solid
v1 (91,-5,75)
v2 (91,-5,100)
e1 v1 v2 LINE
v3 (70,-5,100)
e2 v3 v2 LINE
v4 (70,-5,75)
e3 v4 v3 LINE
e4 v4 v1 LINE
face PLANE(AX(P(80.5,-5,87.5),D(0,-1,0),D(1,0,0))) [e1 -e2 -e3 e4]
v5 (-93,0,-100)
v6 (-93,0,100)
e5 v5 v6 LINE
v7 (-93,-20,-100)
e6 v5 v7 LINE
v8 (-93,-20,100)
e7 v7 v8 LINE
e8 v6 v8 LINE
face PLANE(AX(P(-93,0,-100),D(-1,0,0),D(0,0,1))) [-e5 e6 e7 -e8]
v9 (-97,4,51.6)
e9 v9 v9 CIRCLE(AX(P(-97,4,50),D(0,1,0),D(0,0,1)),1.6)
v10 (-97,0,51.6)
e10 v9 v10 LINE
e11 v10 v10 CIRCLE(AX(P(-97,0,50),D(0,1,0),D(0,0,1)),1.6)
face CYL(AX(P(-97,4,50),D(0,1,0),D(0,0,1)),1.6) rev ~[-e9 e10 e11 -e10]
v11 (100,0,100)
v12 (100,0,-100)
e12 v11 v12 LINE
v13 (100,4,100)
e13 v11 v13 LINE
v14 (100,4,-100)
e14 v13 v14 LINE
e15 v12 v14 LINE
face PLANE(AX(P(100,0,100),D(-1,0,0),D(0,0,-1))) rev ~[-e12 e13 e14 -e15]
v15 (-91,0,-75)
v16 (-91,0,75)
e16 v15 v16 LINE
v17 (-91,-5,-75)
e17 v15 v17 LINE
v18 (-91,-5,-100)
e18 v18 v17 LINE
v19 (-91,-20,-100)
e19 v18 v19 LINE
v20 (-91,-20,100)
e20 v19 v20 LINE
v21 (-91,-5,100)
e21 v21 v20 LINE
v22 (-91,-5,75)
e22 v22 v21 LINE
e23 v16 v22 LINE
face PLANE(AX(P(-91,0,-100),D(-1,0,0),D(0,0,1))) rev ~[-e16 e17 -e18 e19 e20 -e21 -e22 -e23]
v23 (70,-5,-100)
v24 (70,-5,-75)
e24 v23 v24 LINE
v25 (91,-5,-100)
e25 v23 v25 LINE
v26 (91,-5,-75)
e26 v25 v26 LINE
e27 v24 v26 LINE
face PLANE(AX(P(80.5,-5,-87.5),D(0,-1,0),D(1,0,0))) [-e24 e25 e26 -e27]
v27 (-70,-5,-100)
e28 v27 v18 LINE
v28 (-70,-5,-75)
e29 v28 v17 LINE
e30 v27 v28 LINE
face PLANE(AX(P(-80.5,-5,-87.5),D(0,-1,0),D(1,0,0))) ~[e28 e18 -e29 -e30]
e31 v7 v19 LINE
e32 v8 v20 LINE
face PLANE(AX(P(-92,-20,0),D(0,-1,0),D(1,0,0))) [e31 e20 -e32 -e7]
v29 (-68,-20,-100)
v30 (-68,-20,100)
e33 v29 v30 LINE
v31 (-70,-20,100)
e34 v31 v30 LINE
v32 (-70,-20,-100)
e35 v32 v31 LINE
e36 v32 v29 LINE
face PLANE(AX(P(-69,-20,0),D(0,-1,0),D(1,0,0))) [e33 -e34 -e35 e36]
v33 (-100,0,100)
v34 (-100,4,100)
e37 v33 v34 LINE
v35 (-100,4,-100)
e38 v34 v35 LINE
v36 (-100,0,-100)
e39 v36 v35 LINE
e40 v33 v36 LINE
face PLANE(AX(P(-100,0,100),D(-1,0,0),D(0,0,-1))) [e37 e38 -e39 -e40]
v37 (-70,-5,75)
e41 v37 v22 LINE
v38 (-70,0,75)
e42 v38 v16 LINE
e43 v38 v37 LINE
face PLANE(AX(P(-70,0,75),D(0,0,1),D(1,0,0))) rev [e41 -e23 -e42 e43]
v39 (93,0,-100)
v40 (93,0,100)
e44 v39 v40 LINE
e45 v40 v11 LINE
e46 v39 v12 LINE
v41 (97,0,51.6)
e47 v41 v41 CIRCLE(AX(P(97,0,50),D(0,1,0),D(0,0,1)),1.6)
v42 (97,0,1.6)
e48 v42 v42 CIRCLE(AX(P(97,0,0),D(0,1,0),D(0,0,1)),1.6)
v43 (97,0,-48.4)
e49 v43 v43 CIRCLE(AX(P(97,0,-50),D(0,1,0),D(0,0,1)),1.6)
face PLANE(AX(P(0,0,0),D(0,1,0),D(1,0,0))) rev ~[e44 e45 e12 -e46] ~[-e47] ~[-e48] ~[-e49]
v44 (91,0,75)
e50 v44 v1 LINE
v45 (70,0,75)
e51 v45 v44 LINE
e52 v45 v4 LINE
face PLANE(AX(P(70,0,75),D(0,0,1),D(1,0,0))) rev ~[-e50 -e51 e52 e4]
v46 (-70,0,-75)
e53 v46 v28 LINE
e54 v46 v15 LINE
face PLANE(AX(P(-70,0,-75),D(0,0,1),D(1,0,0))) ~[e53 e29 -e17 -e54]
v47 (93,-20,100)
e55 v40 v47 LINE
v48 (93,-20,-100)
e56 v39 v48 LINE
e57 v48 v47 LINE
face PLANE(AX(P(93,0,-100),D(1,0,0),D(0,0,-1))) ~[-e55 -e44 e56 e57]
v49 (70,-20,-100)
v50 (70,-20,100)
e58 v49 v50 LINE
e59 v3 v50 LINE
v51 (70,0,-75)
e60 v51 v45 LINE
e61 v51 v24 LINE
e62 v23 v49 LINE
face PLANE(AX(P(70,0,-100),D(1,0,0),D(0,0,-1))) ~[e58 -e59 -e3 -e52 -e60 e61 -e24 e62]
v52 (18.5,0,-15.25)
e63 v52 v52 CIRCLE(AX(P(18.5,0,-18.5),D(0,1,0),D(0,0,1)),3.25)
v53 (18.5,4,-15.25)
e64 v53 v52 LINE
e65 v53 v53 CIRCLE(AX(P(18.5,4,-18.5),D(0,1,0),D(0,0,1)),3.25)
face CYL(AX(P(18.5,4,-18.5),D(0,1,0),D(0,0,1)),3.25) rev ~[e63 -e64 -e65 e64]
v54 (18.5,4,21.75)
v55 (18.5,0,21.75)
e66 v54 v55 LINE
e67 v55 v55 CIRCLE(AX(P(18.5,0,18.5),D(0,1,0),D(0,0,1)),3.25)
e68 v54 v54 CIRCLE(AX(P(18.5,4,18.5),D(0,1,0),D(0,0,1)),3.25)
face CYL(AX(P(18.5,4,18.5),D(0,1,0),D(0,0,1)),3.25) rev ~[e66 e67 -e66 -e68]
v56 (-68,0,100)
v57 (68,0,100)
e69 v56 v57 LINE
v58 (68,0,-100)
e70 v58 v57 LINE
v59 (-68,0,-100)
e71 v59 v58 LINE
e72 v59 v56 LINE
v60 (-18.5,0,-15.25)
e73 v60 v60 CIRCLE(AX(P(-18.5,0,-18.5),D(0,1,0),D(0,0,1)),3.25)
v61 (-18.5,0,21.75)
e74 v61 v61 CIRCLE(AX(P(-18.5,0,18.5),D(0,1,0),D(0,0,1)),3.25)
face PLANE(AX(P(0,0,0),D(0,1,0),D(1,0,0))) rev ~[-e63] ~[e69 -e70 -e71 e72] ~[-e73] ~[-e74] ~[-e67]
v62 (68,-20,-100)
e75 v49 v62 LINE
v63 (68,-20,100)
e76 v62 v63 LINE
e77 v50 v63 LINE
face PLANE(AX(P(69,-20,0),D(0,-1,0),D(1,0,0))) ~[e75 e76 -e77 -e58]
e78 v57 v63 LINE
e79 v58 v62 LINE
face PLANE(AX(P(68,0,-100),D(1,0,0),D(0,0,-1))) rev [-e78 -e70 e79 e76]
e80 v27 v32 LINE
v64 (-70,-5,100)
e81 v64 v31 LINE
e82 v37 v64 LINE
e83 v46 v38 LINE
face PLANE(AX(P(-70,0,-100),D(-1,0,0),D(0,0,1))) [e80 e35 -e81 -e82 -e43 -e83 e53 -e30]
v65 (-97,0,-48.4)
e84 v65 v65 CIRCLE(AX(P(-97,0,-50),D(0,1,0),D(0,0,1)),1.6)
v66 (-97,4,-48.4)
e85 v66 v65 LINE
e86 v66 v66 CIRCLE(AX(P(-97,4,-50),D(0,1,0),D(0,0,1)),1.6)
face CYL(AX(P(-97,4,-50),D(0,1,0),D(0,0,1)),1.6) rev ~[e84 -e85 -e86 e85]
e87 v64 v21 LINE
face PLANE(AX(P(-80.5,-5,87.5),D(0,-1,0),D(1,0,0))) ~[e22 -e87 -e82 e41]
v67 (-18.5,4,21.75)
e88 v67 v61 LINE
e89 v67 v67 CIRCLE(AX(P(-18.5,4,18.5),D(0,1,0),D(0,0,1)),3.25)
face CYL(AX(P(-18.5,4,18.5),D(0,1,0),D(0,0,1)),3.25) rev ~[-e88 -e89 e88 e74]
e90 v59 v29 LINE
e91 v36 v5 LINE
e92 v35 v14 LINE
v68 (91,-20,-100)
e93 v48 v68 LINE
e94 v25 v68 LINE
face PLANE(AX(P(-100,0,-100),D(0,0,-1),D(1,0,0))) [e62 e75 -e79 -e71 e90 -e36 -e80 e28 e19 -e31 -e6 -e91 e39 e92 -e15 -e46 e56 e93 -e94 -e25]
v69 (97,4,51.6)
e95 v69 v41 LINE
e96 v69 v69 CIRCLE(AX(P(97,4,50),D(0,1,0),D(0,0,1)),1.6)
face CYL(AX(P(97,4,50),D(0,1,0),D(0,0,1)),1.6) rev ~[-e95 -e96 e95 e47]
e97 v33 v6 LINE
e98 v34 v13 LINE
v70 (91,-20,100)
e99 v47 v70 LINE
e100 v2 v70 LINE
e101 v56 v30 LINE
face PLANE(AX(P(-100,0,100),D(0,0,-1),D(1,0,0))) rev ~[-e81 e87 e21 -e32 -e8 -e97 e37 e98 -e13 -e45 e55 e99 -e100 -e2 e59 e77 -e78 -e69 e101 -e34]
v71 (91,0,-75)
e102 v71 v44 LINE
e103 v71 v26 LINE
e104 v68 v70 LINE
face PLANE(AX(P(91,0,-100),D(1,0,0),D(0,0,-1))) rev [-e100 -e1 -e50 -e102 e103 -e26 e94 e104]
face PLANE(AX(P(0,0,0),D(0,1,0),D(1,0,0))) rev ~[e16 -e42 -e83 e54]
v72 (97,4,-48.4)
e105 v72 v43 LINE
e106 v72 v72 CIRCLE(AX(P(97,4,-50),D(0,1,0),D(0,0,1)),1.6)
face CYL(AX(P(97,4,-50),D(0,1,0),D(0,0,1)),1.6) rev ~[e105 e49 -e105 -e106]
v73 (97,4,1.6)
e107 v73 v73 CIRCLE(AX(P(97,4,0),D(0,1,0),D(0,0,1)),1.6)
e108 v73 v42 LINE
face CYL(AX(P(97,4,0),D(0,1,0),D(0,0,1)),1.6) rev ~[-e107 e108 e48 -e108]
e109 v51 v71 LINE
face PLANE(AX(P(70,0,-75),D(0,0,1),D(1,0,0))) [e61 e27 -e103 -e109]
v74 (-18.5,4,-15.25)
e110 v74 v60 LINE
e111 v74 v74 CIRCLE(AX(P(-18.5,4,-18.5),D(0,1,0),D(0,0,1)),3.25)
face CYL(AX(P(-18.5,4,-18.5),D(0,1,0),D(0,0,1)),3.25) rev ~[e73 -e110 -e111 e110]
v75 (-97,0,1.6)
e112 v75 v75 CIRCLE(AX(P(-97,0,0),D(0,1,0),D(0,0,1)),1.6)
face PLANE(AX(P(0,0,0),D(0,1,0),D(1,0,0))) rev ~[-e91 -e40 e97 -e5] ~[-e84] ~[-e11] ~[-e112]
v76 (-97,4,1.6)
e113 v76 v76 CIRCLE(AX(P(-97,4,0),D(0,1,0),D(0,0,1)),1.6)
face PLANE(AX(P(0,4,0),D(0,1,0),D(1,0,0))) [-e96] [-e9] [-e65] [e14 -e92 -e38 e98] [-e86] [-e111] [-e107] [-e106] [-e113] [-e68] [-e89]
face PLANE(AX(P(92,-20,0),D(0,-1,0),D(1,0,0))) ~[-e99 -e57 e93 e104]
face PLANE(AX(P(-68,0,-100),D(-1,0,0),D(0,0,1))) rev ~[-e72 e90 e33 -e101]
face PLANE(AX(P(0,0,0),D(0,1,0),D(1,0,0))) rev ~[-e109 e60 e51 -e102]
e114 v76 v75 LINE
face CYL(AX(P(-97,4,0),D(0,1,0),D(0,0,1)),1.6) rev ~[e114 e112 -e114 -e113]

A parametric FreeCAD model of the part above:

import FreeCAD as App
import Part
import Sketcher

doc = App.newDocument("Part")
body = doc.addObject("PartDesign::Body", "Body")

sketch1 = body.newObject("Sketcher::SketchObject", "Sketch")
sketch1.AttachmentSupport = (doc.getObject("XZ_Plane"), [""])
sketch1.MapMode = "FlatFace"
sketch1.addGeometry([
    Part.LineSegment(App.Vector(-100, -100, 0), App.Vector(-100, 100, 0)),
    Part.LineSegment(App.Vector(-100, 100, 0), App.Vector(100, 100, 0)),
    Part.LineSegment(App.Vector(100, 100, 0), App.Vector(100, -100, 0)),
    Part.LineSegment(App.Vector(100, -100, 0), App.Vector(-100, -100, 0)),
], False)
sketch1.addConstraint([
    Sketcher.Constraint("Coincident", 0, 2, 1, 1),
    Sketcher.Constraint("Coincident", 1, 2, 2, 1),
    Sketcher.Constraint("Coincident", 2, 2, 3, 1),
    Sketcher.Constraint("Coincident", 3, 2, 0, 1),
    Sketcher.Constraint("Vertical", 0),
    Sketcher.Constraint("Horizontal", 1),
    Sketcher.Constraint("Vertical", 2),
    Sketcher.Constraint("Horizontal", 3),
    Sketcher.Constraint("Symmetric", 0, 2, 2, 2, -1, 1),
    Sketcher.Constraint("Equal", 3, 0),
    Sketcher.Constraint("DistanceX", 1, 1, 1, 2, 200.0),
])
pad1 = body.newObject("PartDesign::Pad", "Pad")
pad1.Profile = sketch1
pad1.Length = 4
pad1.Reversed = True

sketch2 = body.newObject("Sketcher::SketchObject", "Sketch001")
sketch2.AttachmentSupport = (doc.getObject("XZ_Plane"), [""])
sketch2.MapMode = "FlatFace"
sketch2.addGeometry([
    Part.LineSegment(App.Vector(-70, 100, 0), App.Vector(-70, -100, 0)),
    Part.LineSegment(App.Vector(-70, -100, 0), App.Vector(-68, -100, 0)),
    Part.LineSegment(App.Vector(-68, -100, 0), App.Vector(-68, 100, 0)),
    Part.LineSegment(App.Vector(-68, 100, 0), App.Vector(-70, 100, 0)),
    Part.LineSegment(App.Vector(-93, 100, 0), App.Vector(-93, -100, 0)),
    Part.LineSegment(App.Vector(-93, -100, 0), App.Vector(-91, -100, 0)),
    Part.LineSegment(App.Vector(-91, -100, 0), App.Vector(-91, 100, 0)),
    Part.LineSegment(App.Vector(-91, 100, 0), App.Vector(-93, 100, 0)),
], False)
sketch2.addConstraint([
    Sketcher.Constraint("Coincident", 0, 2, 1, 1),
    Sketcher.Constraint("Coincident", 1, 2, 2, 1),
    Sketcher.Constraint("Coincident", 2, 2, 3, 1),
    Sketcher.Constraint("Coincident", 3, 2, 0, 1),
    Sketcher.Constraint("Coincident", 4, 2, 5, 1),
    Sketcher.Constraint("Coincident", 5, 2, 6, 1),
    Sketcher.Constraint("Coincident", 6, 2, 7, 1),
    Sketcher.Constraint("Coincident", 7, 2, 4, 1),
    Sketcher.Constraint("Vertical", 0),
    Sketcher.Constraint("Horizontal", 1),
    Sketcher.Constraint("Vertical", 2),
    Sketcher.Constraint("Horizontal", 3),
    Sketcher.Constraint("Vertical", 4),
    Sketcher.Constraint("Horizontal", 5),
    Sketcher.Constraint("Vertical", 6),
    Sketcher.Constraint("Horizontal", 7),
    Sketcher.Constraint("Horizontal", 1, 2, 4, 2),
    Sketcher.Constraint("Horizontal", 3, 2, 6, 2),
    Sketcher.Constraint("Equal", 3, 5),
    Sketcher.Constraint("DistanceX", 1, 1, 1, 2, 2.0),
    Sketcher.Constraint("DistanceY", 0, 2, 0, 1, 200.0),
    Sketcher.Constraint("DistanceX", 0, 2, -1, 1, 70.0),
    Sketcher.Constraint("DistanceY", 0, 2, -1, 1, 100.0),
    Sketcher.Constraint("DistanceX", 4, 2, -1, 1, 93.0),
])
pad2 = body.newObject("PartDesign::Pad", "Pad001")
pad2.Profile = sketch2
pad2.Length = 20
doc.recompute()

mirrored = body.newObject("PartDesign::Mirrored", "Mirrored")
mirrored.Originals = [pad2]
mirrored.MirrorPlane = (doc.getObject("YZ_Plane"), [""])
body.Tip = mirrored

sketch3 = body.newObject("Sketcher::SketchObject", "Sketch002")
sketch3.AttachmentSupport = (doc.getObject("XZ_Plane"), [""])
sketch3.MapMode = "FlatFace"
sketch3.AttachmentOffset = App.Placement(App.Vector(0, 0, -4), App.Rotation())
sketch3.addGeometry([
    Part.Circle(App.Vector(18.5, -18.5, 0), App.Vector(0, 0, 1), 3.2),
    Part.Circle(App.Vector(18.5, 18.5, 0), App.Vector(0, 0, 1), 3.2),
    Part.Circle(App.Vector(-18.5, 18.5, 0), App.Vector(0, 0, 1), 3.2),
    Part.Circle(App.Vector(-18.5, -18.5, 0), App.Vector(0, 0, 1), 3.2),
    Part.Circle(App.Vector(97, 50, 0), App.Vector(0, 0, 1), 1.6),
    Part.Circle(App.Vector(97, -50, 0), App.Vector(0, 0, 1), 1.6),
    Part.Circle(App.Vector(-97, 50, 0), App.Vector(0, 0, 1), 1.6),
    Part.Circle(App.Vector(-97, -50, 0), App.Vector(0, 0, 1), 1.6),
    Part.Circle(App.Vector(-97, 0, 0), App.Vector(0, 0, 1), 1.6),
    Part.Circle(App.Vector(97, 0, 0), App.Vector(0, 0, 1), 1.6),
], False)
sketch3.addConstraint([
    Sketcher.Constraint("Equal", 0, 1),
    Sketcher.Constraint("Equal", 1, 2),
    Sketcher.Constraint("Equal", 2, 3),
    Sketcher.Constraint("Equal", 4, 5),
    Sketcher.Constraint("Equal", 5, 6),
    Sketcher.Constraint("Equal", 6, 7),
    Sketcher.Constraint("Equal", 7, 8),
    Sketcher.Constraint("Equal", 8, 9),
    Sketcher.Constraint("Symmetric", 0, 3, 2, 3, -1, 1),
    Sketcher.Constraint("Symmetric", 1, 3, 3, 3, -1, 1),
    Sketcher.Constraint("Symmetric", 5, 3, 6, 3, -1, 1),
    Sketcher.Constraint("Symmetric", 4, 3, 7, 3, -1, 1),
    Sketcher.Constraint("Symmetric", 8, 3, 9, 3, -1, 1),
    Sketcher.Constraint("Symmetric", 1, 3, 2, 3, -2),
    Sketcher.Constraint("Symmetric", 4, 3, 6, 3, -2),
    Sketcher.Constraint("PointOnObject", 8, 3, -1),
    Sketcher.Constraint("Vertical", 7, 3, 8, 3),
    Sketcher.Constraint("Diameter", 0, 6.5),
    Sketcher.Constraint("Diameter", 4, 3.2),
    Sketcher.Constraint("DistanceX", -1, 1, 4, 3, 97.0),
    Sketcher.Constraint("DistanceY", -1, 1, 4, 3, 50.0),
    Sketcher.Constraint("DistanceY", 0, 3, 1, 3, 37.0),
    Sketcher.Constraint("DistanceX", 2, 3, 1, 3, 37.0),
])
pocket1 = body.newObject("PartDesign::Pocket", "Pocket")
pocket1.Profile = sketch3
pocket1.Length = 10
pocket1.Reversed = True

sketch4 = body.newObject("Sketcher::SketchObject", "Sketch003")
sketch4.AttachmentSupport = (doc.getObject("XZ_Plane"), [""])
sketch4.MapMode = "FlatFace"
sketch4.addGeometry([
    Part.LineSegment(App.Vector(70, 100, 0), App.Vector(70, 75, 0)),
    Part.LineSegment(App.Vector(70, 75, 0), App.Vector(91, 75, 0)),
    Part.LineSegment(App.Vector(91, 75, 0), App.Vector(91, 100, 0)),
    Part.LineSegment(App.Vector(91, 100, 0), App.Vector(70, 100, 0)),
    Part.LineSegment(App.Vector(70, -75, 0), App.Vector(70, -100, 0)),
    Part.LineSegment(App.Vector(70, -100, 0), App.Vector(91, -100, 0)),
    Part.LineSegment(App.Vector(91, -100, 0), App.Vector(91, -75, 0)),
    Part.LineSegment(App.Vector(91, -75, 0), App.Vector(70, -75, 0)),
], False)
sketch4.addConstraint([
    Sketcher.Constraint("Coincident", 0, 2, 1, 1),
    Sketcher.Constraint("Coincident", 1, 2, 2, 1),
    Sketcher.Constraint("Coincident", 2, 2, 3, 1),
    Sketcher.Constraint("Coincident", 3, 2, 0, 1),
    Sketcher.Constraint("Coincident", 4, 2, 5, 1),
    Sketcher.Constraint("Coincident", 5, 2, 6, 1),
    Sketcher.Constraint("Coincident", 6, 2, 7, 1),
    Sketcher.Constraint("Coincident", 7, 2, 4, 1),
    Sketcher.Constraint("Vertical", 0),
    Sketcher.Constraint("Horizontal", 1),
    Sketcher.Constraint("Vertical", 2),
    Sketcher.Constraint("Horizontal", 3),
    Sketcher.Constraint("Vertical", 4),
    Sketcher.Constraint("Horizontal", 5),
    Sketcher.Constraint("Vertical", 6),
    Sketcher.Constraint("Horizontal", 7),
    Sketcher.Constraint("Symmetric", 3, 2, 4, 2, -1),
    Sketcher.Constraint("Symmetric", 1, 2, 6, 2, -1),
    Sketcher.Constraint("DistanceX", 1, 1, 1, 2, 21.0),
    Sketcher.Constraint("DistanceY", 0, 2, 0, 1, 25.0),
    Sketcher.Constraint("DistanceX", -1, 1, 0, 2, 70.0),
    Sketcher.Constraint("DistanceY", -1, 1, 0, 2, 75.0),
])
pad3 = body.newObject("PartDesign::Pad", "Pad002")
pad3.Profile = sketch4
pad3.Length = 5
doc.recompute()

mirrored2 = body.newObject("PartDesign::Mirrored", "Mirrored001")
mirrored2.Originals = [pad3]
mirrored2.MirrorPlane = (doc.getObject("YZ_Plane"), [""])
body.Tip = mirrored2

doc.recompute()
